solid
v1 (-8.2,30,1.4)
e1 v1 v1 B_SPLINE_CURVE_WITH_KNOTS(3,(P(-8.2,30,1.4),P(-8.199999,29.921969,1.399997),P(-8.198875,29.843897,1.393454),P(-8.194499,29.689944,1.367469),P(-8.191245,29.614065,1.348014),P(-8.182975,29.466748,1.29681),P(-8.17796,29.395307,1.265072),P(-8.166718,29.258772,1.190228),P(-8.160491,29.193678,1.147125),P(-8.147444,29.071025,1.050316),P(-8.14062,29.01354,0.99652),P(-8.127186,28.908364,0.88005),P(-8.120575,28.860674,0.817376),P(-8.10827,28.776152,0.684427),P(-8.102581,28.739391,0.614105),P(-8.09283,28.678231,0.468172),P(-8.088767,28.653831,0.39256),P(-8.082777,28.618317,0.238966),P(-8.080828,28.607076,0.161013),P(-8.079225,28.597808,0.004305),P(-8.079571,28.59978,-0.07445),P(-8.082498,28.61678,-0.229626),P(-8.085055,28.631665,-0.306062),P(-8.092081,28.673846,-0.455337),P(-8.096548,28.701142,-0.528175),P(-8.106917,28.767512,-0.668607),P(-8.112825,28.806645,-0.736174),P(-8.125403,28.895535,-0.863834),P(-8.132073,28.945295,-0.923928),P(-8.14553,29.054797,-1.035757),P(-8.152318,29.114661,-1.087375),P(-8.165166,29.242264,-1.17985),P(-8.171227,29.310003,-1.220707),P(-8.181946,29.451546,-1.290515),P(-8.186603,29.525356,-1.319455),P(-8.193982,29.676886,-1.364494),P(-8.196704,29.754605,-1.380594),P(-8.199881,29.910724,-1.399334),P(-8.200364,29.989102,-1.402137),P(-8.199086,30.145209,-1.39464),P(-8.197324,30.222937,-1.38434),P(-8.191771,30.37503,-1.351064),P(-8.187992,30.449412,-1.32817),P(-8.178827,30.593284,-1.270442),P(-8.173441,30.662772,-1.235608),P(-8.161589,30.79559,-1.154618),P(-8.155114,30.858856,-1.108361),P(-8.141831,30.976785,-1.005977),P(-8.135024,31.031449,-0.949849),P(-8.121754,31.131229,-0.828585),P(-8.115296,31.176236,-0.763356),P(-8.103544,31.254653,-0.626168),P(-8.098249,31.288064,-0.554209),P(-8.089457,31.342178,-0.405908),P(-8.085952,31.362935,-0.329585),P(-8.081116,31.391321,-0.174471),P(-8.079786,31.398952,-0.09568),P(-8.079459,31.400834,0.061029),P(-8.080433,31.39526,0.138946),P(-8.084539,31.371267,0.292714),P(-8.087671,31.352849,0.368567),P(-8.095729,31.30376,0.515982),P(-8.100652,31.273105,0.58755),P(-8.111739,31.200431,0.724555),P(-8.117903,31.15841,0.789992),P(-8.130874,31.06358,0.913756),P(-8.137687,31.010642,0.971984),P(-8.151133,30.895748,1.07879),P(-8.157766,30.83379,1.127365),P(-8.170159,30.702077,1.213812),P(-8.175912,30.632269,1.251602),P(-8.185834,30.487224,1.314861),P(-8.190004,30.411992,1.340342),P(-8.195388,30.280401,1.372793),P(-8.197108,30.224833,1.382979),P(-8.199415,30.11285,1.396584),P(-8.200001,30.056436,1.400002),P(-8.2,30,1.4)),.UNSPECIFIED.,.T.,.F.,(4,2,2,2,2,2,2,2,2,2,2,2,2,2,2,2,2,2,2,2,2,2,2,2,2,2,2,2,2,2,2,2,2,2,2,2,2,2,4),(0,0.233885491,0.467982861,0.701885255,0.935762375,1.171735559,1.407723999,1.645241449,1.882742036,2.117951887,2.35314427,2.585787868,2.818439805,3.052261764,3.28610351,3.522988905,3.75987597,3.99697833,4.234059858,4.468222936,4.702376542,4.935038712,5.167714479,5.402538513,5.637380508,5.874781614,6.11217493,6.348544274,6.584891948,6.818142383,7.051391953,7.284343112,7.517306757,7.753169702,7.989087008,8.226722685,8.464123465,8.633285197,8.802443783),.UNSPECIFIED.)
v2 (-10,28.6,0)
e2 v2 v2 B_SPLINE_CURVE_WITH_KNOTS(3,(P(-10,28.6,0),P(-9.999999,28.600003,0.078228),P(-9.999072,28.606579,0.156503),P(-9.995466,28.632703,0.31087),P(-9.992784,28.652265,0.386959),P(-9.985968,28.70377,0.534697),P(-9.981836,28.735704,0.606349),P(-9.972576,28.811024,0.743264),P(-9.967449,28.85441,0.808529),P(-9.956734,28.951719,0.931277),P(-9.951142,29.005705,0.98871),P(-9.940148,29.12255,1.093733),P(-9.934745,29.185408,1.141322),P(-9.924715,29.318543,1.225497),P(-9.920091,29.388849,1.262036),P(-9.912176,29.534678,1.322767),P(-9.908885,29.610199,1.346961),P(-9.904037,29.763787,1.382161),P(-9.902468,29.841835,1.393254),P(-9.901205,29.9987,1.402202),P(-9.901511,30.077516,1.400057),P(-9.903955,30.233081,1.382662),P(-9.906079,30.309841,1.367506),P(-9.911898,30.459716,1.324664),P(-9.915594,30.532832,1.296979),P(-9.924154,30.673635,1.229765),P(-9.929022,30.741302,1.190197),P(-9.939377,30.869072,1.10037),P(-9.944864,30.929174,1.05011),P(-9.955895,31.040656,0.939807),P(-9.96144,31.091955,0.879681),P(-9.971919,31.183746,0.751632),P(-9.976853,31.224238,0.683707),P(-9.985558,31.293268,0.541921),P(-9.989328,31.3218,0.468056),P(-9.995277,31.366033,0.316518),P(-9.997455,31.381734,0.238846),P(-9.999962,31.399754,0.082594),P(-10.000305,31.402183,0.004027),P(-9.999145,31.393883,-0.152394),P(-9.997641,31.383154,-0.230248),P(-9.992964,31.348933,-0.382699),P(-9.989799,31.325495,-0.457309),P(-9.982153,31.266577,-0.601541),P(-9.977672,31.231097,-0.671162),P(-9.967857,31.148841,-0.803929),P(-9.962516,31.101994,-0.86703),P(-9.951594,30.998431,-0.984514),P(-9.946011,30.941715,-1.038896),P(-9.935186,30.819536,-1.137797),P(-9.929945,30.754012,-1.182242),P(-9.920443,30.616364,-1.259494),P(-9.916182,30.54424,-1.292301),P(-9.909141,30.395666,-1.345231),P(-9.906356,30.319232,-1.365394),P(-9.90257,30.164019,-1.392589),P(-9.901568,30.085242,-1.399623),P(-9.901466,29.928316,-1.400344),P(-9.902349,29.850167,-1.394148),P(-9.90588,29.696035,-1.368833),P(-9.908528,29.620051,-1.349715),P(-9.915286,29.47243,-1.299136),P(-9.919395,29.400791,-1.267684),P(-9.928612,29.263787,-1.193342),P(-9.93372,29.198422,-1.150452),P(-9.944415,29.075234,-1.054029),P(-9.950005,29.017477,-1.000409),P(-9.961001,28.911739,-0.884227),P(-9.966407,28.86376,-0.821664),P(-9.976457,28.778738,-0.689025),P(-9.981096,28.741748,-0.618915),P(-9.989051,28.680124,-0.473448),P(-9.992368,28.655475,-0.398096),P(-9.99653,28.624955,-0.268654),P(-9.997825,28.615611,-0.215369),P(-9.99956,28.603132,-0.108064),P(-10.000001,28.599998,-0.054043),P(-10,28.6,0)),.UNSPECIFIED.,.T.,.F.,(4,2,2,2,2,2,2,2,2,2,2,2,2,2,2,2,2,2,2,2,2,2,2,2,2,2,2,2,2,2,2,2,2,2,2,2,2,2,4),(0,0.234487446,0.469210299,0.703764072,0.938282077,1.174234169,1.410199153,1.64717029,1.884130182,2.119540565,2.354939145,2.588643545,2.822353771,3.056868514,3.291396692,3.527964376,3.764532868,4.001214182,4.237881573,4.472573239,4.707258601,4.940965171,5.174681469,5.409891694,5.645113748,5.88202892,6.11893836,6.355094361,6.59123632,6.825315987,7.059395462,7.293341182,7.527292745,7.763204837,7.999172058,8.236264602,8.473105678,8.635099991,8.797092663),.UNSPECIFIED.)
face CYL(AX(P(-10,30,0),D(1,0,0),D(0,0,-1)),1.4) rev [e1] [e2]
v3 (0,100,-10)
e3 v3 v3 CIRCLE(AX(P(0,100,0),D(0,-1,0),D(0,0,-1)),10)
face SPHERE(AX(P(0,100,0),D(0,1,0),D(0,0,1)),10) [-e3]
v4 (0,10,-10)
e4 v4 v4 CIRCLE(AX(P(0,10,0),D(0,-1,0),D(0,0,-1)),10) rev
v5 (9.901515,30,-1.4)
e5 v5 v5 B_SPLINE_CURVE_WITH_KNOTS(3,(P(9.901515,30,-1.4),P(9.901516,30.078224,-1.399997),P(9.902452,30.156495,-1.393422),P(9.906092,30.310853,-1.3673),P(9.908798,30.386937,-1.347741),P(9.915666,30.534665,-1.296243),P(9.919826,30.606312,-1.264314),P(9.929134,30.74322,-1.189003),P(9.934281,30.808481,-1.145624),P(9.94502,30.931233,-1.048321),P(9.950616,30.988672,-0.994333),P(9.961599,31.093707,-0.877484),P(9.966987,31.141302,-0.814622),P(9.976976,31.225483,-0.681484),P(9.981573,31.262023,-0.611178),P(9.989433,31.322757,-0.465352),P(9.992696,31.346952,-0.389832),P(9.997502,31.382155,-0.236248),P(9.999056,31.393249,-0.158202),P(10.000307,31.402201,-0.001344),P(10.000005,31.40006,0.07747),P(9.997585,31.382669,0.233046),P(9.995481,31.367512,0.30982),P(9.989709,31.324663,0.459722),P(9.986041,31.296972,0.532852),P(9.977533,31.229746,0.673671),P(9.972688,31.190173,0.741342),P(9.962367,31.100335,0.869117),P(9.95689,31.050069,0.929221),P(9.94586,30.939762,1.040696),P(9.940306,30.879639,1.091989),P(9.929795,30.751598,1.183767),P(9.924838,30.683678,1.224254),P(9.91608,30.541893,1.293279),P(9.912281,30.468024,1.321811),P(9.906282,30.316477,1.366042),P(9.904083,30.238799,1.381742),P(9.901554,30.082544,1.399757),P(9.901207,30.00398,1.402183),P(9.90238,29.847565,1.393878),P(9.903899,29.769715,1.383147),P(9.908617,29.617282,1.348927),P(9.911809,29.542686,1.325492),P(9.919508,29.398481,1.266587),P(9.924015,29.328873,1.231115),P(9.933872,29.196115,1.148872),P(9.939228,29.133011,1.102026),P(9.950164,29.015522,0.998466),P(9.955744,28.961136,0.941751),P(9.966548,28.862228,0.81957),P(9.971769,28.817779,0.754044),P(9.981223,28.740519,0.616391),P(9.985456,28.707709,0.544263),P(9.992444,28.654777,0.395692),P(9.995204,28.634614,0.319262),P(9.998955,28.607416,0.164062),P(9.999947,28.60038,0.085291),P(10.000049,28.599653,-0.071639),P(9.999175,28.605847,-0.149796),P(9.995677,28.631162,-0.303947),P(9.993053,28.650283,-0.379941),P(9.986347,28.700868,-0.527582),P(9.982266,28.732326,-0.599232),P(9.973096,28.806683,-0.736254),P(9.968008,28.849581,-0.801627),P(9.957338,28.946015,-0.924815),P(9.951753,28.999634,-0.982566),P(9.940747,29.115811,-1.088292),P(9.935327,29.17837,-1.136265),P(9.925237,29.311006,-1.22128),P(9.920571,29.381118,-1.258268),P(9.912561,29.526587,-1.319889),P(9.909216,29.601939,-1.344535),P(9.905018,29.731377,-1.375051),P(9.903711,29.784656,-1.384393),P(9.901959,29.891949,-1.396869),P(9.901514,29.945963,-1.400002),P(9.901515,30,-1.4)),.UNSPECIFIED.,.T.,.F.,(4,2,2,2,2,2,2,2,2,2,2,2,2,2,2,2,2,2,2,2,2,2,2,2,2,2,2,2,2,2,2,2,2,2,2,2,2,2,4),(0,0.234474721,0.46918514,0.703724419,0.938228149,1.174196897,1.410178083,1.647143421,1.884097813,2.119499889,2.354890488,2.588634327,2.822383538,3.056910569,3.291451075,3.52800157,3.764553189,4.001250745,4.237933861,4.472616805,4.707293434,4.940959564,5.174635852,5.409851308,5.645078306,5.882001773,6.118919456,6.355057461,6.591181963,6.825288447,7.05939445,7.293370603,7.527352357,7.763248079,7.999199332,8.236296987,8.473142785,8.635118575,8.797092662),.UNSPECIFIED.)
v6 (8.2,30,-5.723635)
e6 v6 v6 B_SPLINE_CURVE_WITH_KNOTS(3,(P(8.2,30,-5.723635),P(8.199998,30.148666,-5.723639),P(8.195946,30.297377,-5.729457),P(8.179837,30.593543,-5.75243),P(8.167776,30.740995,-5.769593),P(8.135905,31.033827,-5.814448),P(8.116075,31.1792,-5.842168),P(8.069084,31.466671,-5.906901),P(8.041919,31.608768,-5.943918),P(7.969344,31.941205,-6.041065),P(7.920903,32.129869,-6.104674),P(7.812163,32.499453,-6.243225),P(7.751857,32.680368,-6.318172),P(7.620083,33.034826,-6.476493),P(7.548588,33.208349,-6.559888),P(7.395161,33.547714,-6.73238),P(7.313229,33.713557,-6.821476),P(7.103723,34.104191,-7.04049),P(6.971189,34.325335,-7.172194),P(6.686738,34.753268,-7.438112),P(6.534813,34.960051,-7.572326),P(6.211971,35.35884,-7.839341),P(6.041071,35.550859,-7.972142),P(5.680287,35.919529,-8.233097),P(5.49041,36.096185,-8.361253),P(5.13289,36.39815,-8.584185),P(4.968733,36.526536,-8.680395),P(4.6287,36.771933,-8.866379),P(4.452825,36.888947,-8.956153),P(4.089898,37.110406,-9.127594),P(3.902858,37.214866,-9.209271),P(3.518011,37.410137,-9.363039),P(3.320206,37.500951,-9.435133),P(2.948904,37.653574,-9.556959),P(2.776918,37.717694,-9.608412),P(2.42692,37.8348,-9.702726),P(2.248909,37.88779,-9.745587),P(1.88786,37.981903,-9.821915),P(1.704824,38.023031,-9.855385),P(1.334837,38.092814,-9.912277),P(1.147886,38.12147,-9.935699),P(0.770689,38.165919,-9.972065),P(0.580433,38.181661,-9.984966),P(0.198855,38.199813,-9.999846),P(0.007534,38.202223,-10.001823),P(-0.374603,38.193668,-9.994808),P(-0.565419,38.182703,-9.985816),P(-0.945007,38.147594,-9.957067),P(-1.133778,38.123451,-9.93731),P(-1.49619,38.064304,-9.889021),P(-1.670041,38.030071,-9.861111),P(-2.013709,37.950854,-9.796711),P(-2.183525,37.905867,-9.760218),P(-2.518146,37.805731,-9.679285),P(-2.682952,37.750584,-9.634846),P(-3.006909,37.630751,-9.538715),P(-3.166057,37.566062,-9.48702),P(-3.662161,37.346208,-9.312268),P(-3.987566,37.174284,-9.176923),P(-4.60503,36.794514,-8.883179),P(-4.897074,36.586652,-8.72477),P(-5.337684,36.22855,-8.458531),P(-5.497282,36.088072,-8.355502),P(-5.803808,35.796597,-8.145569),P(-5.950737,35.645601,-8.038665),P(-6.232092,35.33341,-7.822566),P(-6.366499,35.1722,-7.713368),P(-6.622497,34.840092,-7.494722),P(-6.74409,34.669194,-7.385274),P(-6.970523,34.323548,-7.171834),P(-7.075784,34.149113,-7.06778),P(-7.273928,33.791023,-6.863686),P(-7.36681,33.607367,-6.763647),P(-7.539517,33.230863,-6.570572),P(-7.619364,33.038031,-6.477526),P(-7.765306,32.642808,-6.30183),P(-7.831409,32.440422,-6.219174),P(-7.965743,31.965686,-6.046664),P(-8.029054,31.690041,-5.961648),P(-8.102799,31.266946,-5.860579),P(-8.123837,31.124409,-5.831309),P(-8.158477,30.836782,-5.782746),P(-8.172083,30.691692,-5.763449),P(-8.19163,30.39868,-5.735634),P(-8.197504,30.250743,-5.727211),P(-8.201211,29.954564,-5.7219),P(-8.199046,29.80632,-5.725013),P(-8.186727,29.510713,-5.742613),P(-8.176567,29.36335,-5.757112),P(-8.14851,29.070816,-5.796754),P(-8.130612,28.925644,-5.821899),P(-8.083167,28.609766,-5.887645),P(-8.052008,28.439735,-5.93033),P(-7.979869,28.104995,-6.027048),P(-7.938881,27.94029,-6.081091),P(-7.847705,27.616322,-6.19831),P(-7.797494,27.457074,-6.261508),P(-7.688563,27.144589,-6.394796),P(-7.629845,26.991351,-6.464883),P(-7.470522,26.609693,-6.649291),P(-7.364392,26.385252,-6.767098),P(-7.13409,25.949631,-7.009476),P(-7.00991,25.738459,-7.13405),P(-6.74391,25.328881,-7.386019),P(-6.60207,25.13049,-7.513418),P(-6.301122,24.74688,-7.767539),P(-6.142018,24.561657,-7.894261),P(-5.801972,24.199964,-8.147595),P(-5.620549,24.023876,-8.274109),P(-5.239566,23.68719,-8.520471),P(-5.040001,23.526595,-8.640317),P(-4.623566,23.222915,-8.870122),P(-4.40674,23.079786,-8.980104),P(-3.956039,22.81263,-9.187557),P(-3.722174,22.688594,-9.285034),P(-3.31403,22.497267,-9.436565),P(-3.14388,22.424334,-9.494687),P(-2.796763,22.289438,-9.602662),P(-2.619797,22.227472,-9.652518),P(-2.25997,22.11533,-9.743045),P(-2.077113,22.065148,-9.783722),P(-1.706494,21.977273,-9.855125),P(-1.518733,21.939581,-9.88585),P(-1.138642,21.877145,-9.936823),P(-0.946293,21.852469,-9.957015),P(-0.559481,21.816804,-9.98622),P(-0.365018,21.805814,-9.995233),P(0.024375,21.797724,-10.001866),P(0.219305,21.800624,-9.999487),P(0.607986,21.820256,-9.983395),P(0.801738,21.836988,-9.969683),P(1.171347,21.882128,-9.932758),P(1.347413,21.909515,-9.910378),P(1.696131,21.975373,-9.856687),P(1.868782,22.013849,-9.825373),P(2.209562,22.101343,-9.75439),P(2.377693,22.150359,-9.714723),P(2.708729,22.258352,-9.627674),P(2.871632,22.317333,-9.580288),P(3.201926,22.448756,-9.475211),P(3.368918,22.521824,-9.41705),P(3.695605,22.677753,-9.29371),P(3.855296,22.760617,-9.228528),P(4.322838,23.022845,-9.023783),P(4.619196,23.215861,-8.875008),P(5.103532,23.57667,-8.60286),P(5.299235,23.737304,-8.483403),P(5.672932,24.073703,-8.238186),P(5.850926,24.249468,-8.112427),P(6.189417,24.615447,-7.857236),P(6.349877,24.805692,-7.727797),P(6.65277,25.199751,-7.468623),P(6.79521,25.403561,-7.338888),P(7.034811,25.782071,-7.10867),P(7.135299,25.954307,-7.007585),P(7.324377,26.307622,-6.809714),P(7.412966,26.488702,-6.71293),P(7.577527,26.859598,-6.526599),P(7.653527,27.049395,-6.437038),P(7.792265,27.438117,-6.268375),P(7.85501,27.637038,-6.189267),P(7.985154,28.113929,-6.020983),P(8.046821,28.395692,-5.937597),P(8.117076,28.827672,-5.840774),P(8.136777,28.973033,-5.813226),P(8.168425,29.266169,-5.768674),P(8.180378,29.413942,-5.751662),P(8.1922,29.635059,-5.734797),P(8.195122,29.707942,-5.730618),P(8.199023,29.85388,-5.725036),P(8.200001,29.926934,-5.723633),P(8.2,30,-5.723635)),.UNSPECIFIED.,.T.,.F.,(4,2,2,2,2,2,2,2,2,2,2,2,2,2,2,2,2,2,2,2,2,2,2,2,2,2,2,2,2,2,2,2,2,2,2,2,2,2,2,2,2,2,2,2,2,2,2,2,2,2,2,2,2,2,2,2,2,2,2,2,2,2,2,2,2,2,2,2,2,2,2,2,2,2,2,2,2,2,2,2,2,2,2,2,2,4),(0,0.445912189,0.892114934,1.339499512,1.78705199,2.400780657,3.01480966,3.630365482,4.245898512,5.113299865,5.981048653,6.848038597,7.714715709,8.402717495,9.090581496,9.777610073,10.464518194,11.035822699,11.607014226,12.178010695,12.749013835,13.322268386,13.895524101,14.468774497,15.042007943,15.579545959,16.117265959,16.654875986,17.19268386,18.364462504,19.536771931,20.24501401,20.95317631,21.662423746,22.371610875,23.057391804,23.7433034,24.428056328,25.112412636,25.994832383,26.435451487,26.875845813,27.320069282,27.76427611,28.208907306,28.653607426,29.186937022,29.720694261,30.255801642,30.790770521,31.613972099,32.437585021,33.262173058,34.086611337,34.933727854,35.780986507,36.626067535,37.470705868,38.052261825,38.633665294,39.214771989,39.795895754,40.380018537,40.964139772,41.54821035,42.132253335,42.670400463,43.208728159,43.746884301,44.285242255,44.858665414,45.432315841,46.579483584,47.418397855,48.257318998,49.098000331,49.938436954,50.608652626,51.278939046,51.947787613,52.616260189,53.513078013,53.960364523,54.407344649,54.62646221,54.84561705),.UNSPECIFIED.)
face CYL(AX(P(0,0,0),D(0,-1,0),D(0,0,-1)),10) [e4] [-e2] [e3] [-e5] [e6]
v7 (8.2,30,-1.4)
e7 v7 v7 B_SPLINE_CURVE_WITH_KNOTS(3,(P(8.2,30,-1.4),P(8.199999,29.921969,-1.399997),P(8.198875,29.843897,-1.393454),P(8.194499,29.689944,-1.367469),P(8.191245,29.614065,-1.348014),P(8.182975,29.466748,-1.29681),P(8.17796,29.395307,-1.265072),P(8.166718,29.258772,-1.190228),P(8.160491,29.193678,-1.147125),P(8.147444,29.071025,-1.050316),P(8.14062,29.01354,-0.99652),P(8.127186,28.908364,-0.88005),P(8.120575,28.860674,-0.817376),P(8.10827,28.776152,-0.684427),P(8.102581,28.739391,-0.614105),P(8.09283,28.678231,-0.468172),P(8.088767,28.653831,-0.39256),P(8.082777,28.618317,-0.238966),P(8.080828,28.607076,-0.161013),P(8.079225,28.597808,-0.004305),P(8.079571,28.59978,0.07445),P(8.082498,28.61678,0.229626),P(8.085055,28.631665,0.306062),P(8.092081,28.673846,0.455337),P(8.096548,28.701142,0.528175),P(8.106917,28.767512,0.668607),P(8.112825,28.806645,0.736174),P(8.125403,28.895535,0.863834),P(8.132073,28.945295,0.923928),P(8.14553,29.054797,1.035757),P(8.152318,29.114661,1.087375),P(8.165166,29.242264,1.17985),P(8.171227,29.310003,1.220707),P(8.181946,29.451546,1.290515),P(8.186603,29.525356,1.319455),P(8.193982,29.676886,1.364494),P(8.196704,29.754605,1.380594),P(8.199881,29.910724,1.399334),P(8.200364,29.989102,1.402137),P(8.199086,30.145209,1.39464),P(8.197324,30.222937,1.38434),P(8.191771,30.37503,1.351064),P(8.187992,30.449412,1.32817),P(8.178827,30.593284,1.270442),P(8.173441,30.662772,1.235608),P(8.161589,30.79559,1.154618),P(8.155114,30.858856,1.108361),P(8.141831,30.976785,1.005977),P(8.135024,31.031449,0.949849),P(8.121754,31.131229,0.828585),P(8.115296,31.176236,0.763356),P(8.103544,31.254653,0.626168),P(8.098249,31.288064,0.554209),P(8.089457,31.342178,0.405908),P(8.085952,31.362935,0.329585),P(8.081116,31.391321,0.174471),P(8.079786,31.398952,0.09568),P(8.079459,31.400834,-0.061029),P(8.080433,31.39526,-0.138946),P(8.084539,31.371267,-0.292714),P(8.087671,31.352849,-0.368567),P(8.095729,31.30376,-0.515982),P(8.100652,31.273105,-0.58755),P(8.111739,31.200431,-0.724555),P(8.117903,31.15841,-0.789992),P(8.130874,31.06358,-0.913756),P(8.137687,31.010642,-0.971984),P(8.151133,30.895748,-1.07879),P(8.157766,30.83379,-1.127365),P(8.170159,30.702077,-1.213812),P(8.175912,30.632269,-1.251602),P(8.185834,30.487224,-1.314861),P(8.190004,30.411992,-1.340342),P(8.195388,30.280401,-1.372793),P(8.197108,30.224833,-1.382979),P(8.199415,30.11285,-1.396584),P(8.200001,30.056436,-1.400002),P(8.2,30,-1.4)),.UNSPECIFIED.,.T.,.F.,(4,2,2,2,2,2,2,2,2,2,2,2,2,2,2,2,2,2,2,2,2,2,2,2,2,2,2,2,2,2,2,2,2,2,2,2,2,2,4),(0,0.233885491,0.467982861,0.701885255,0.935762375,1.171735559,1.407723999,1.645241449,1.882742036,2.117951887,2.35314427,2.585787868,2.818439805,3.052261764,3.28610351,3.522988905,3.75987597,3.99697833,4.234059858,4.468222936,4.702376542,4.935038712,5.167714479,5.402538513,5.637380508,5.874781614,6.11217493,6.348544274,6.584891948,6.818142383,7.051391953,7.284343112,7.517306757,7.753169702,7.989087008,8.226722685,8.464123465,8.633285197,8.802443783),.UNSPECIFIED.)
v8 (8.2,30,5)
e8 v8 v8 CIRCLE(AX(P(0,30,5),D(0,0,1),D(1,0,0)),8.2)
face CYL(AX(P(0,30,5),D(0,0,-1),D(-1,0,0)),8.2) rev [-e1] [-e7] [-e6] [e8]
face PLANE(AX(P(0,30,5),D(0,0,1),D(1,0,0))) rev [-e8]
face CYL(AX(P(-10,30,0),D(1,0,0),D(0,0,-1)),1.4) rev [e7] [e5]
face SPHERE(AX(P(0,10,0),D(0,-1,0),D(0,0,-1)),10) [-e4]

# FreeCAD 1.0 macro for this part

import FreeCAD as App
import Part
import Sketcher
from FreeCAD import Vector


def edges_at(feature, points):
    """Names of the edges that pass closest to the given points."""
    edges = feature.Shape.Edges
    near = lambda p: min(range(len(edges)), key=lambda i: edges[i].distToShape(Part.Vertex(*p))[0])
    return sorted({f"Edge{near(p) + 1}" for p in points})


def add_polygon(sketch, points):
    """Adds a closed chain of lines whose ends are joined by coincident constraints."""
    first, n = sketch.GeometryCount, len(points)
    for a, b in zip(points, points[1:] + points[:1]):
        sketch.addGeometry(Part.LineSegment(App.Vector(*a, 0), App.Vector(*b, 0)), False)
    for i in range(n):
        sketch.addConstraint(Sketcher.Constraint("Coincident", first + i, 2, first + (i + 1) % n, 1))

doc = App.newDocument("Part")
body = doc.addObject("PartDesign::Body", "Body")

sketch1 = doc.addObject("Sketcher::SketchObject", "Sketch")
body.addObject(sketch1)
sketch1.AttachmentSupport = (doc.XY_Plane, [""])
sketch1.MapMode = "FlatFace"
add_polygon(sketch1, [(0, 110), (0, 0), (10, 0), (10, 110)])
sketch1.addConstraint([
    Sketcher.Constraint("Vertical", 0),
    Sketcher.Constraint("Horizontal", 1),
    Sketcher.Constraint("Vertical", 2),
    Sketcher.Constraint("Horizontal", 3),
    Sketcher.Constraint("Coincident", 0, 2, -1, 1),
    Sketcher.Constraint("DistanceX", 1, 1, 1, 2, 10.0),
    Sketcher.Constraint("DistanceY", 0, 2, 0, 1, 110.0),
])
revolution = doc.addObject("PartDesign::Revolution", "Revolution")
body.addObject(revolution)
revolution.Profile = sketch1
revolution.ReferenceAxis = (sketch1, ["V_Axis"])
revolution.Angle = 360

sketch2 = doc.addObject("Sketcher::SketchObject", "Sketch001")
body.addObject(sketch2)
sketch2.AttachmentSupport = (doc.XY_Plane, [""])
sketch2.MapMode = "FlatFace"
sketch2.addGeometry(Part.Circle(Vector(0, 30, 0), Vector(0, 0, 1), 8.2), False)
sketch2.addConstraint([
    Sketcher.Constraint("PointOnObject", 0, 3, -2),
    Sketcher.Constraint("Diameter", 0, 16.4),
    Sketcher.Constraint("DistanceY", -1, 1, 0, 3, 30.0),
])
pocket1 = doc.addObject("PartDesign::Pocket", "Pocket")
body.addObject(pocket1)
pocket1.Profile = sketch2
pocket1.Type = "UpToFirst"

sketch3 = doc.addObject("Sketcher::SketchObject", "Sketch002")
body.addObject(sketch3)
sketch3.AttachmentSupport = (doc.XY_Plane, [""])
sketch3.MapMode = "FlatFace"
sketch3.addGeometry(Part.Circle(Vector(0, 30, 0), Vector(0, 0, 1), 8.2), False)
sketch3.addConstraint([
    Sketcher.Constraint("PointOnObject", 0, 3, -2),
    Sketcher.Constraint("Diameter", 0, 16.4),
    Sketcher.Constraint("DistanceY", -1, 1, 0, 3, 30.0),
])
pocket2 = doc.addObject("PartDesign::Pocket", "Pocket001")
body.addObject(pocket2)
pocket2.Profile = sketch3
pocket2.Length = 5
pocket2.Reversed = True

sketch4 = doc.addObject("Sketcher::SketchObject", "Sketch003")
body.addObject(sketch4)
sketch4.AttachmentSupport = (doc.YZ_Plane, [""])
sketch4.MapMode = "FlatFace"
sketch4.addGeometry(Part.Circle(Vector(30, 0, 0), Vector(0, 0, 1), 1.4), False)
sketch4.addConstraint([
    Sketcher.Constraint("PointOnObject", 0, 3, -1),
    Sketcher.Constraint("Diameter", 0, 2.8),
    Sketcher.Constraint("DistanceX", -1, 1, 0, 3, 30.0),
])
pocket3 = doc.addObject("PartDesign::Pocket", "Pocket002")
body.addObject(pocket3)
pocket3.Profile = sketch4
pocket3.Type = "ThroughAll"
pocket3.Midplane = True
doc.recompute()

fillet = doc.addObject("PartDesign::Fillet", "Fillet")
body.addObject(fillet)
fillet.Base = (pocket3, edges_at(pocket3, [(-10, 0, 0)]))
fillet.Radius = 10
doc.recompute()

fillet2 = doc.addObject("PartDesign::Fillet", "Fillet001")
body.addObject(fillet2)
fillet2.Base = (fillet, edges_at(fillet, [(-10, 110, 0)]))
fillet2.Radius = 10

doc.recompute()
